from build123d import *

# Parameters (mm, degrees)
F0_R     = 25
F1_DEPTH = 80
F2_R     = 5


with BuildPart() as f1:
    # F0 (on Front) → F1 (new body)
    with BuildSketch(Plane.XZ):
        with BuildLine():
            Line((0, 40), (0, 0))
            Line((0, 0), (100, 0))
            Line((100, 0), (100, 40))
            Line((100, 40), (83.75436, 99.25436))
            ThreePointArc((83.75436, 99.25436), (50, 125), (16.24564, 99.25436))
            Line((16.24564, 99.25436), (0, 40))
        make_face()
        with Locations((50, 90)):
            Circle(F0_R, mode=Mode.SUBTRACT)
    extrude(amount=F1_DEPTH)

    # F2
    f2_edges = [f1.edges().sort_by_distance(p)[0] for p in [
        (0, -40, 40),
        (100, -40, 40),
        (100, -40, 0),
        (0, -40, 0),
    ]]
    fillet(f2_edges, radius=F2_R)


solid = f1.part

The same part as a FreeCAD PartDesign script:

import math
import FreeCAD as App
import Part
import Sketcher
from FreeCAD import Vector


def edges_at(feature, points):
    """Names of the edges that pass closest to the given points."""
    edges = feature.Shape.Edges
    near = lambda p: min(range(len(edges)), key=lambda i: edges[i].distToShape(Part.Vertex(*p))[0])
    return sorted({f"Edge{near(p) + 1}" for p in points})

doc = App.newDocument("Part")
params = doc.addObject("Spreadsheet::Sheet", "Params")
for row, (alias, value) in enumerate([
    ("sketch1_diameter", "50 mm"),
    ("sketch1_radius", "35 mm"),
    ("sketch1_width", "100 mm"),
    ("sketch1_height", "40 mm"),
    ("pad1_length", "80 mm"),
    ("fillet_radius", "5 mm"),
], start=1):
    params.set(f"A{row}", alias)
    params.set(f"B{row}", "=" + value)
    params.setAlias(f"B{row}", alias)

body = doc.addObject("PartDesign::Body", "Body")

# Sketch on XZ plane
sketch1 = body.newObject("Sketcher::SketchObject", "Sketch")
sketch1.AttachmentSupport = (doc.getObject("XZ_Plane"), [""])
sketch1.MapMode = "FlatFace"
sketch1.addGeometry([
    Part.LineSegment(Vector(0, 40, 0), Vector(0, 0, 0)),  # 0
    Part.LineSegment(Vector(0, 0, 0), Vector(100, 0, 0)),  # 1
    Part.LineSegment(Vector(100, 0, 0), Vector(100, 40, 0)),  # 2
    Part.LineSegment(Vector(100, 40, 0), Vector(84, 99, 0)),  # 3
    Part.ArcOfCircle(Part.Circle(Vector(50, 90, 0), Vector(0, 0, 1), 35), math.radians(15), math.radians(165)),  # 4
    Part.LineSegment(Vector(16, 99, 0), Vector(0, 40, 0)),  # 5
    Part.Circle(Vector(50, 90, 0), Vector(0, 0, 1), 25),  # 6
], False)
sketch1.addConstraint([
    Sketcher.Constraint("Coincident", 0, 2, 1, 1),
    Sketcher.Constraint("Coincident", 1, 2, 2, 1),
    Sketcher.Constraint("Coincident", 2, 2, 3, 1),
    Sketcher.Constraint("Tangent", 3, 2, 4, 1),
    Sketcher.Constraint("Tangent", 4, 2, 5, 1),
    Sketcher.Constraint("Coincident", 5, 2, 0, 1),
    Sketcher.Constraint("Vertical", 0),
    Sketcher.Constraint("Horizontal", 1),
    Sketcher.Constraint("Vertical", 2),
    Sketcher.Constraint("Coincident", 0, 2, -1, 1),
    Sketcher.Constraint("Coincident", 6, 3, 4, 3),
    Sketcher.Constraint("Horizontal", 3, 2, 4, 2),
    Sketcher.Constraint("Horizontal", 2, 2, 5, 2),
    Sketcher.Constraint("Diameter", 6, 50.0),
    Sketcher.Constraint("Radius", 4, 35.0),
    Sketcher.Constraint("DistanceX", 1, 1, 1, 2, 100.0),
    Sketcher.Constraint("DistanceY", 0, 2, 0, 1, 40.0),
    Sketcher.Constraint("DistanceY", -1, 1, 4, 3, 90.0),
])
sketch1.setExpression("Constraints[13]", "Params.sketch1_diameter")
sketch1.setExpression("Constraints[14]", "Params.sketch1_radius")
sketch1.setExpression("Constraints[15]", "Params.sketch1_width")
sketch1.setExpression("Constraints[16]", "Params.sketch1_height")
pad1 = body.newObject("PartDesign::Pad", "Pad")
pad1.Profile = sketch1
pad1.setExpression("Length", "Params.pad1_length")
doc.recompute()

fillet = body.newObject("PartDesign::Fillet", "Fillet")
fillet.Base = (pad1, edges_at(pad1, [
    (0, -40, 40),
    (100, -40, 40),
    (100, -40, 0),
    (0, -40, 0),
]))
fillet.setExpression("Radius", "Params.fillet_radius")

doc.recompute()
